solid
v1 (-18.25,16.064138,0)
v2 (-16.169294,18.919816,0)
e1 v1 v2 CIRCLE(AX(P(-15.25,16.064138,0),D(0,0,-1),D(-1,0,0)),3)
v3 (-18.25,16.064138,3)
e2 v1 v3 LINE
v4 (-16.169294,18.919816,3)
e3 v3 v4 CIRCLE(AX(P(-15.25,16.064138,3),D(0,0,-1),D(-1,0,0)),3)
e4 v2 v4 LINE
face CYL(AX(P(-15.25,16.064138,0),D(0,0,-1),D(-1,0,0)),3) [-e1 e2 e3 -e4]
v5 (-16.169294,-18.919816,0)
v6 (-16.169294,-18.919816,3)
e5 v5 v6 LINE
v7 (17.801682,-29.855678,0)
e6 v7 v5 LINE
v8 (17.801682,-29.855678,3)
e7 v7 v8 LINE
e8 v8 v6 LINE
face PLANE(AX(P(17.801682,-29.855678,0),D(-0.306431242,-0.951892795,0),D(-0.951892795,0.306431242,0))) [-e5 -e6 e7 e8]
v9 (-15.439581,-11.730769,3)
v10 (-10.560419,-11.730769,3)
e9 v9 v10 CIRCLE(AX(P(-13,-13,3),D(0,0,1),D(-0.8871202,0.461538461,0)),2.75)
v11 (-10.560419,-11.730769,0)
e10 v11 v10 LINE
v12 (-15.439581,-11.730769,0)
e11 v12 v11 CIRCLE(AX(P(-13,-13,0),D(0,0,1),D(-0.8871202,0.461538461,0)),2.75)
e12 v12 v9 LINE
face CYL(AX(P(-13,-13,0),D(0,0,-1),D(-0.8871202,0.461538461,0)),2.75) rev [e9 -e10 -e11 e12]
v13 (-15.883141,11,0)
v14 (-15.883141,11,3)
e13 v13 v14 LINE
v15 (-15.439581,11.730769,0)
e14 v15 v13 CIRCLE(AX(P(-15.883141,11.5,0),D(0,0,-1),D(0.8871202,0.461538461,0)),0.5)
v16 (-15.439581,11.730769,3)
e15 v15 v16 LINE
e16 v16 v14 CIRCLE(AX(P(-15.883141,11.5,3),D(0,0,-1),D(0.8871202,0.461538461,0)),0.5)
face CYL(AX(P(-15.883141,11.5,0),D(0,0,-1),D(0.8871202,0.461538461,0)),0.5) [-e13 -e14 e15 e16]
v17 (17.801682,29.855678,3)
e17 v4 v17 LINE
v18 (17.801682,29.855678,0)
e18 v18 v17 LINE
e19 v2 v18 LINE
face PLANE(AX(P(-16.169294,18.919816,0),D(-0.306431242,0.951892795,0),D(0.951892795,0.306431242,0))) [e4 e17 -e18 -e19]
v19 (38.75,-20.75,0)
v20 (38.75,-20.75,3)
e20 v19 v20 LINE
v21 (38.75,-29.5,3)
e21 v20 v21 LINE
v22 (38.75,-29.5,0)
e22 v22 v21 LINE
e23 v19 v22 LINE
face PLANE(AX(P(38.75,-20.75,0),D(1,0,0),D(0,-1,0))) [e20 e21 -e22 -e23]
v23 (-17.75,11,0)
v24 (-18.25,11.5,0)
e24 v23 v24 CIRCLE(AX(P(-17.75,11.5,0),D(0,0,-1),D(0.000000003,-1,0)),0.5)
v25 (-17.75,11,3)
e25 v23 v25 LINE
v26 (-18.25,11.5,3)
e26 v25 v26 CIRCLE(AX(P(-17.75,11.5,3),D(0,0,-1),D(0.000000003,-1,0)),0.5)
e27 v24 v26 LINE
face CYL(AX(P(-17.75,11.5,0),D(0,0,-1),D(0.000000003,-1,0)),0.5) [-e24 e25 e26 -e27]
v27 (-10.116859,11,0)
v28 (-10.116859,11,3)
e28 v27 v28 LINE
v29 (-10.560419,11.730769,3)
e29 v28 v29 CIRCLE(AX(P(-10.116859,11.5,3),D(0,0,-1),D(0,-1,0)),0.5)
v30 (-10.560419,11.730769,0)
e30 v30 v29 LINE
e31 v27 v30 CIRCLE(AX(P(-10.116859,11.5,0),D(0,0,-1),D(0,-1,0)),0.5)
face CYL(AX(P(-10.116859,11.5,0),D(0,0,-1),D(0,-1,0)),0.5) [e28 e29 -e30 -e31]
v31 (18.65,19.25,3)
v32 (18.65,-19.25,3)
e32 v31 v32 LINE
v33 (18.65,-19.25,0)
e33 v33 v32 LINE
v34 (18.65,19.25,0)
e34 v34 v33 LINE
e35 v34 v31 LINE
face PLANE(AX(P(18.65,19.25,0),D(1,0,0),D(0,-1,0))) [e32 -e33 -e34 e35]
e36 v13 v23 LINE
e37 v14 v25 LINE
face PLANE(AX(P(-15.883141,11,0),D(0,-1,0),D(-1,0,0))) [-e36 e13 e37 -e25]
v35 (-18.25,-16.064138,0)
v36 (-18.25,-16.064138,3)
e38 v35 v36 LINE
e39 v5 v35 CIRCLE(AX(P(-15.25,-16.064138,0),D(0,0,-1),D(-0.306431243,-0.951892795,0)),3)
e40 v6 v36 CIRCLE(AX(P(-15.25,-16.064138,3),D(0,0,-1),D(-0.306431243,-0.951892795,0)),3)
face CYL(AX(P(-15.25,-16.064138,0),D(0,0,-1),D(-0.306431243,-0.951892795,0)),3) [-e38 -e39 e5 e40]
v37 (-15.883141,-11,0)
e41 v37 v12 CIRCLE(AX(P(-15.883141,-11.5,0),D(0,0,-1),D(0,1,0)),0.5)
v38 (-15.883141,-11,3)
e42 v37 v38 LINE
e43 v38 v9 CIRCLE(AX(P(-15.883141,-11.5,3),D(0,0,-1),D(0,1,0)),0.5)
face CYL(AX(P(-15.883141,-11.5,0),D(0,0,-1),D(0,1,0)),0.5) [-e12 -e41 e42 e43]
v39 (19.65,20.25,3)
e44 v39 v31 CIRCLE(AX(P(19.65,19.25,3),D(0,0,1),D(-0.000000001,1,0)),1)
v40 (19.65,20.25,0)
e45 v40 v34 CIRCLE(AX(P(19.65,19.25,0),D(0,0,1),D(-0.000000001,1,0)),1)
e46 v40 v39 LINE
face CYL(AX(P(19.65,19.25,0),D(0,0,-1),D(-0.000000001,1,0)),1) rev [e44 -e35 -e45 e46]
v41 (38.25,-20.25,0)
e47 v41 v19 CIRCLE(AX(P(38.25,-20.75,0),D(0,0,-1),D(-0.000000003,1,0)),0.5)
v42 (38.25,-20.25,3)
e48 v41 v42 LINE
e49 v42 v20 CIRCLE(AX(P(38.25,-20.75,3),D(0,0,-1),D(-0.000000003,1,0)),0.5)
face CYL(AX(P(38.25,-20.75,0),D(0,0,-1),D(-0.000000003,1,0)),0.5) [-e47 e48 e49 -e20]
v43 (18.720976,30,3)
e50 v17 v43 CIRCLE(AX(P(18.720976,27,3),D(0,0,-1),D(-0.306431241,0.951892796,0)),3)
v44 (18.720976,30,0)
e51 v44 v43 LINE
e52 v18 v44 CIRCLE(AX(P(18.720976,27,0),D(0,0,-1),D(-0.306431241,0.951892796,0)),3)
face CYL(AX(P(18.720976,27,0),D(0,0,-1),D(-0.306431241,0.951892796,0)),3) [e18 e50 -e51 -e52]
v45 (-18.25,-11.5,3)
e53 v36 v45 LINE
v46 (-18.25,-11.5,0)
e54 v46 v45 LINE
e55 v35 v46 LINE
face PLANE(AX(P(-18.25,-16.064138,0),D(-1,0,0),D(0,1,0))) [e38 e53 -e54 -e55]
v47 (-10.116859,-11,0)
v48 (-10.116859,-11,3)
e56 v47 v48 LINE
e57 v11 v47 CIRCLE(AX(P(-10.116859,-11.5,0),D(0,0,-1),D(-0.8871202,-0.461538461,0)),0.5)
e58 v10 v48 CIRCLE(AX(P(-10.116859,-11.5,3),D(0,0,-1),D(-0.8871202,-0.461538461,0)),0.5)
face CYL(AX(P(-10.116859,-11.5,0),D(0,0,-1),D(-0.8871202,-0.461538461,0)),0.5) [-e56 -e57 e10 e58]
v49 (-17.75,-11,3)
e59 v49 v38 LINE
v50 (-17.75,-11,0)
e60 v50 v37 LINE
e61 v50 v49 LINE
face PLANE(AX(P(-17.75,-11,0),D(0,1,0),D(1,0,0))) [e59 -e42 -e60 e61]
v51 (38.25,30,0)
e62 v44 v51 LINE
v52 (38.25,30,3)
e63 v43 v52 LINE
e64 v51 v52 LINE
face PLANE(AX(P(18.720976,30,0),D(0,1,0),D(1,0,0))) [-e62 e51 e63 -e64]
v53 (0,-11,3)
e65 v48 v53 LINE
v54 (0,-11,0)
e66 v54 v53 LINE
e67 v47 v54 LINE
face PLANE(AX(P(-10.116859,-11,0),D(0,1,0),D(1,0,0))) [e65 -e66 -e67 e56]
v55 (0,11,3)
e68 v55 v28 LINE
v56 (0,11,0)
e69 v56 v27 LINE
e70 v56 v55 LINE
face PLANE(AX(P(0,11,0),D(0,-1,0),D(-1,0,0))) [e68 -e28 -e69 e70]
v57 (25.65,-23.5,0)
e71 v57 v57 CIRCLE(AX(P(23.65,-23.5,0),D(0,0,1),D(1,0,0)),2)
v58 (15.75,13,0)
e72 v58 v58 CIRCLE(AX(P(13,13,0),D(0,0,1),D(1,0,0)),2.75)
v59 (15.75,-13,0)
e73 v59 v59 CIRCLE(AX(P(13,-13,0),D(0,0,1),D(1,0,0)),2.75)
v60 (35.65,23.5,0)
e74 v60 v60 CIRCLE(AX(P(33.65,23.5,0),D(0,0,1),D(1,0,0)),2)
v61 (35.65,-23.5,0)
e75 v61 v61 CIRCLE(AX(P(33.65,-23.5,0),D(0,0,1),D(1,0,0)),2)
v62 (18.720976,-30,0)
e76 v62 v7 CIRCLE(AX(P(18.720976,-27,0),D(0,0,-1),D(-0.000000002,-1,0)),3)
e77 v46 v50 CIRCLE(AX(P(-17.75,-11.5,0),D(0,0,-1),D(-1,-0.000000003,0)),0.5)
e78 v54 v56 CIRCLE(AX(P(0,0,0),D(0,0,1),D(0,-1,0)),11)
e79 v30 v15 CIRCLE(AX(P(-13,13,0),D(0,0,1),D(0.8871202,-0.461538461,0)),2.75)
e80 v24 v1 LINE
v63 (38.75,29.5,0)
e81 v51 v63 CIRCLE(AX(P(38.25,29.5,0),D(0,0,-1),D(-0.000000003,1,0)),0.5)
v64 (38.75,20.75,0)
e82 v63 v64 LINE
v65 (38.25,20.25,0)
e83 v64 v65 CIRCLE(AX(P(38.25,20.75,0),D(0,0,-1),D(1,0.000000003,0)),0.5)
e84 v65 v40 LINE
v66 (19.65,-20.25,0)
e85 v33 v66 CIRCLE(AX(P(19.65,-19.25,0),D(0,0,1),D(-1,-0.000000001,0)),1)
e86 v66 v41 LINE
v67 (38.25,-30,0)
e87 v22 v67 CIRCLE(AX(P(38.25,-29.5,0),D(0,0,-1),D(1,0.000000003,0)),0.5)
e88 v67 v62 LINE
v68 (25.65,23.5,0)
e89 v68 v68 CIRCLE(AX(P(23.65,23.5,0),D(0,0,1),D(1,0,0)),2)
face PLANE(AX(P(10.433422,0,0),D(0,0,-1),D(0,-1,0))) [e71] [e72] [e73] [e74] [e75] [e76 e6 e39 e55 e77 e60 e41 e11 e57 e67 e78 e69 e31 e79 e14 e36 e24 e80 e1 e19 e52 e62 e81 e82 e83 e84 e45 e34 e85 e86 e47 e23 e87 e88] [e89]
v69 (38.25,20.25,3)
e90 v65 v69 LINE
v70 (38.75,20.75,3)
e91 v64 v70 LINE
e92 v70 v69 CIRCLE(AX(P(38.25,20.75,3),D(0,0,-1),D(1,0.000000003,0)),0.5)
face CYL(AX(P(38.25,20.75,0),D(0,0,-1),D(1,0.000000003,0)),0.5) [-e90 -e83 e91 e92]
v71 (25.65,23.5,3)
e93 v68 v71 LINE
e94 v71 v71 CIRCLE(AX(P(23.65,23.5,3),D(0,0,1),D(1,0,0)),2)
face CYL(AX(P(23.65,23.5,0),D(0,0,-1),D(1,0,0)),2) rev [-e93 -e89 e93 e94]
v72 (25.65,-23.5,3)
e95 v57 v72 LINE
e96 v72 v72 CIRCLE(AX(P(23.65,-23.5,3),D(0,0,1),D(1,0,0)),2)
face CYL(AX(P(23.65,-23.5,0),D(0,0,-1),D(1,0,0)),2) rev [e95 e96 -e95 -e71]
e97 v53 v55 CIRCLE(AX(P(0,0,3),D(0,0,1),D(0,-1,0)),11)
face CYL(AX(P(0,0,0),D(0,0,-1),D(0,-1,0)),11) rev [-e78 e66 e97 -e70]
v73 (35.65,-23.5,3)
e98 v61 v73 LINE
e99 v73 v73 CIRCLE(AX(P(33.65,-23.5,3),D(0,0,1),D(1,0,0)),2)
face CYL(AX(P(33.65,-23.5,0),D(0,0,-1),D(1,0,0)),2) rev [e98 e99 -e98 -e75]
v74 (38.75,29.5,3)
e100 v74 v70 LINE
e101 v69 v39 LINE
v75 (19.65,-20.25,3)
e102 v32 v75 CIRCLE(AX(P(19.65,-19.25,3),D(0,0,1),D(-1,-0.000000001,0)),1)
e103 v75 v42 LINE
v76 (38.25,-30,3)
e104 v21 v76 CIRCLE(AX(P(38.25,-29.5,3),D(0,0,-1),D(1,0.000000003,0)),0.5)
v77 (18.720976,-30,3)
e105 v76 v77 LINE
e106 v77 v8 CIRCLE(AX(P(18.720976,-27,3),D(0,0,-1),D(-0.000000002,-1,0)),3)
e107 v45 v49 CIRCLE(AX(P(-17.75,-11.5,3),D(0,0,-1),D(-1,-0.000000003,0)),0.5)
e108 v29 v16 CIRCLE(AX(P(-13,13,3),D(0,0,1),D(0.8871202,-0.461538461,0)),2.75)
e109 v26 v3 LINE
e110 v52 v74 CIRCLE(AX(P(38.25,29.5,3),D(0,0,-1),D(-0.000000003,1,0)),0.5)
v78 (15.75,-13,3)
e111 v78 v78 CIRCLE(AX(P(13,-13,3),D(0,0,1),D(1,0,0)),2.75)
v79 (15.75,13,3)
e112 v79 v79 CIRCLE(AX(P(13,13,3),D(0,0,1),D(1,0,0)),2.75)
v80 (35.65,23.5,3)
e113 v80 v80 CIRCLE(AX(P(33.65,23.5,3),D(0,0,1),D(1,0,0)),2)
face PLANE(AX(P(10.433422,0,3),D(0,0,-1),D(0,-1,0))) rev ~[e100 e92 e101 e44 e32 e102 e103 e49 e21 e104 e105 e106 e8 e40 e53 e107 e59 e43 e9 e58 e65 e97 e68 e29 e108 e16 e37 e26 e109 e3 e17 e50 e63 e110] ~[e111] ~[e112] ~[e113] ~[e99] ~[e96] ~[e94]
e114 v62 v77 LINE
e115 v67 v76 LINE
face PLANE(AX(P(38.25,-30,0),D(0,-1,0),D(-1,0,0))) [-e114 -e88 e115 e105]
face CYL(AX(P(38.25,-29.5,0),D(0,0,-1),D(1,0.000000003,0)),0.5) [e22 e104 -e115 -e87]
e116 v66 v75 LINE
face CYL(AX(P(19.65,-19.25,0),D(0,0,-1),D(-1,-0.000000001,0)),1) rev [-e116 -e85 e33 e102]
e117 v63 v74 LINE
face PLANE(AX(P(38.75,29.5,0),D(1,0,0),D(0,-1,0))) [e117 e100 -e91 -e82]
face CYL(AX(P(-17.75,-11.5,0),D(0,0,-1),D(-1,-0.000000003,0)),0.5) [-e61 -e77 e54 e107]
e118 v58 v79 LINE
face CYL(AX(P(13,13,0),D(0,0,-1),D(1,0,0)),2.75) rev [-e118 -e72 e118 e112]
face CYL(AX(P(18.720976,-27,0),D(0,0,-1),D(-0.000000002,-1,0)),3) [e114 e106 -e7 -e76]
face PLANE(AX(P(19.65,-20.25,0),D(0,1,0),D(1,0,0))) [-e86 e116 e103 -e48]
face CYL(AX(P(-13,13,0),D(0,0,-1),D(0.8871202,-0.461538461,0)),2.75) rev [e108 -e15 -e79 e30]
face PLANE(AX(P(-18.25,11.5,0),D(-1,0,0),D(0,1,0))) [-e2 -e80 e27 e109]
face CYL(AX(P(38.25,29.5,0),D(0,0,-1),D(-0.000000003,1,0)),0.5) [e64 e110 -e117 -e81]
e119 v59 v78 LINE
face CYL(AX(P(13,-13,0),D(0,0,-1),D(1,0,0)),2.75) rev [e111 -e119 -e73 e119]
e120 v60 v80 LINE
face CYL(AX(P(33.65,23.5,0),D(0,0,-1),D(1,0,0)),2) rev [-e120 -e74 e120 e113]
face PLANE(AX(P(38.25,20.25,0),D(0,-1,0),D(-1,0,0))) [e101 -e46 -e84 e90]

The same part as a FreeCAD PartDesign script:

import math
import FreeCAD as App
import Part
import Sketcher
from FreeCAD import Vector

doc = App.newDocument("Part")
body = doc.addObject("PartDesign::Body", "Body")

sketch1 = body.newObject("Sketcher::SketchObject", "Sketch")
sketch1.AttachmentSupport = (doc.getObject("XY_Plane"), [""])
sketch1.MapMode = "FlatFace"
sketch1.addGeometry(Part.LineSegment(Vector(-18.25, -11.5, 0), Vector(-18.25, -16.064138, 0)), False)
sketch1.addGeometry(Part.ArcOfCircle(Part.Circle(Vector(-15.25, -16.064138, 0), Vector(0, 0, 1), 3), math.radians(-180), math.radians(-107.844292)), False)
sketch1.addGeometry(Part.LineSegment(Vector(-16.169294, -18.919816, 0), Vector(17.801682, -29.855678, 0)), False)
sketch1.addGeometry(Part.ArcOfCircle(Part.Circle(Vector(18.720976, -27, 0), Vector(0, 0, 1), 3), math.radians(-107.844292), math.radians(-90)), False)
sketch1.addGeometry(Part.LineSegment(Vector(18.720976, -30, 0), Vector(38.25, -30, 0)), False)
sketch1.addGeometry(Part.ArcOfCircle(Part.Circle(Vector(38.25, -29.5, 0), Vector(0, 0, 1), 0.5), math.radians(-90), math.radians(0)), False)
sketch1.addGeometry(Part.LineSegment(Vector(38.75, -29.5, 0), Vector(38.75, -20.75, 0)), False)
sketch1.addGeometry(Part.ArcOfCircle(Part.Circle(Vector(38.25, -20.75, 0), Vector(0, 0, 1), 0.5), math.radians(0), math.radians(90)), False)
sketch1.addGeometry(Part.LineSegment(Vector(38.25, -20.25, 0), Vector(19.65, -20.25, 0)), False)
sketch1.addGeometry(Part.ArcOfCircle(Part.Circle(Vector(19.65, -19.25, 0), Vector(0, 0, 1), 1), math.radians(-180), math.radians(-90)), False)
sketch1.addGeometry(Part.LineSegment(Vector(18.65, -19.25, 0), Vector(18.65, 19.25, 0)), False)
sketch1.addGeometry(Part.ArcOfCircle(Part.Circle(Vector(19.65, 19.25, 0), Vector(0, 0, 1), 1), math.radians(90), math.radians(180)), False)
sketch1.addGeometry(Part.LineSegment(Vector(19.65, 20.25, 0), Vector(38.25, 20.25, 0)), False)
sketch1.addGeometry(Part.ArcOfCircle(Part.Circle(Vector(38.25, 20.75, 0), Vector(0, 0, 1), 0.5), math.radians(-90), math.radians(0)), False)
sketch1.addGeometry(Part.LineSegment(Vector(38.75, 20.75, 0), Vector(38.75, 29.5, 0)), False)
sketch1.addGeometry(Part.ArcOfCircle(Part.Circle(Vector(38.25, 29.5, 0), Vector(0, 0, 1), 0.5), math.radians(0), math.radians(90)), False)
sketch1.addGeometry(Part.LineSegment(Vector(38.25, 30, 0), Vector(18.720976, 30, 0)), False)
sketch1.addGeometry(Part.ArcOfCircle(Part.Circle(Vector(18.720976, 27, 0), Vector(0, 0, 1), 3), math.radians(90), math.radians(107.844292)), False)
sketch1.addGeometry(Part.LineSegment(Vector(17.801682, 29.855678, 0), Vector(-16.169294, 18.919816, 0)), False)
sketch1.addGeometry(Part.ArcOfCircle(Part.Circle(Vector(-15.25, 16.064138, 0), Vector(0, 0, 1), 3), math.radians(107.844292), math.radians(180)), False)
sketch1.addGeometry(Part.LineSegment(Vector(-18.25, 16.064138, 0), Vector(-18.25, 11.5, 0)), False)
sketch1.addGeometry(Part.ArcOfCircle(Part.Circle(Vector(-17.75, 11.5, 0), Vector(0, 0, 1), 0.5), math.radians(180), math.radians(270)), False)
sketch1.addGeometry(Part.LineSegment(Vector(-17.75, 11, 0), Vector(-15.883141, 11, 0)), False)
sketch1.addGeometry(Part.ArcOfCircle(Part.Circle(Vector(-15.883141, 11.5, 0), Vector(0, 0, 1), 0.5), math.radians(-90), math.radians(27.486426)), False)
sketch1.addGeometry(Part.ArcOfCircle(Part.Circle(Vector(-13, 13, 0), Vector(0, 0, 1), 2.75), math.radians(-27.486426), math.radians(207.486426)), False)
sketch1.addGeometry(Part.ArcOfCircle(Part.Circle(Vector(-10.116859, 11.5, 0), Vector(0, 0, 1), 0.5), math.radians(152.513574), math.radians(270)), False)
sketch1.addGeometry(Part.LineSegment(Vector(-10.116859, 11, 0), Vector(0, 11, 0)), False)
sketch1.addGeometry(Part.ArcOfCircle(Part.Circle(Vector(0, 0, 0), Vector(0, 0, 1), 11), math.radians(-90), math.radians(90)), False)
sketch1.addGeometry(Part.LineSegment(Vector(0, -11, 0), Vector(-10.116859, -11, 0)), False)
sketch1.addGeometry(Part.ArcOfCircle(Part.Circle(Vector(-10.116859, -11.5, 0), Vector(0, 0, 1), 0.5), math.radians(90), math.radians(207.486426)), False)
sketch1.addGeometry(Part.ArcOfCircle(Part.Circle(Vector(-13, -13, 0), Vector(0, 0, 1), 2.75), math.radians(152.513574), math.radians(387.486426)), False)
sketch1.addGeometry(Part.ArcOfCircle(Part.Circle(Vector(-15.883141, -11.5, 0), Vector(0, 0, 1), 0.5), math.radians(-27.486426), math.radians(90)), False)
sketch1.addGeometry(Part.LineSegment(Vector(-15.883141, -11, 0), Vector(-17.75, -11, 0)), False)
sketch1.addGeometry(Part.ArcOfCircle(Part.Circle(Vector(-17.75, -11.5, 0), Vector(0, 0, 1), 0.5), math.radians(90), math.radians(180)), False)
sketch1.addGeometry(Part.Circle(Vector(33.65, 23.5, 0), Vector(0, 0, 1), 2), False)
sketch1.addGeometry(Part.Circle(Vector(23.65, 23.5, 0), Vector(0, 0, 1), 2), False)
sketch1.addGeometry(Part.Circle(Vector(33.65, -23.5, 0), Vector(0, 0, 1), 2), False)
sketch1.addGeometry(Part.Circle(Vector(23.65, -23.5, 0), Vector(0, 0, 1), 2), False)
sketch1.addGeometry(Part.Circle(Vector(13, 13, 0), Vector(0, 0, 1), 2.75), False)
sketch1.addGeometry(Part.Circle(Vector(13, -13, 0), Vector(0, 0, 1), 2.75), False)
sketch1.addConstraint(Sketcher.Constraint("Tangent", 0, 2, 1, 1))
sketch1.addConstraint(Sketcher.Constraint("Tangent", 1, 2, 2, 1))
sketch1.addConstraint(Sketcher.Constraint("Tangent", 2, 2, 3, 1))
sketch1.addConstraint(Sketcher.Constraint("Tangent", 3, 2, 4, 1))
sketch1.addConstraint(Sketcher.Constraint("Tangent", 4, 2, 5, 1))
sketch1.addConstraint(Sketcher.Constraint("Tangent", 5, 2, 6, 1))
sketch1.addConstraint(Sketcher.Constraint("Tangent", 6, 2, 7, 1))
sketch1.addConstraint(Sketcher.Constraint("Tangent", 7, 2, 8, 1))
sketch1.addConstraint(Sketcher.Constraint("Tangent", 8, 2, 9, 2))
sketch1.addConstraint(Sketcher.Constraint("Tangent", 9, 1, 10, 1))
sketch1.addConstraint(Sketcher.Constraint("Tangent", 10, 2, 11, 2))
sketch1.addConstraint(Sketcher.Constraint("Tangent", 11, 1, 12, 1))
sketch1.addConstraint(Sketcher.Constraint("Tangent", 12, 2, 13, 1))
sketch1.addConstraint(Sketcher.Constraint("Tangent", 13, 2, 14, 1))
sketch1.addConstraint(Sketcher.Constraint("Tangent", 14, 2, 15, 1))
sketch1.addConstraint(Sketcher.Constraint("Tangent", 15, 2, 16, 1))
sketch1.addConstraint(Sketcher.Constraint("Tangent", 16, 2, 17, 1))
sketch1.addConstraint(Sketcher.Constraint("Tangent", 17, 2, 18, 1))
sketch1.addConstraint(Sketcher.Constraint("Tangent", 18, 2, 19, 1))
sketch1.addConstraint(Sketcher.Constraint("Tangent", 19, 2, 20, 1))
sketch1.addConstraint(Sketcher.Constraint("Tangent", 20, 2, 21, 1))
sketch1.addConstraint(Sketcher.Constraint("Tangent", 21, 2, 22, 1))
sketch1.addConstraint(Sketcher.Constraint("Tangent", 22, 2, 23, 1))
sketch1.addConstraint(Sketcher.Constraint("Tangent", 23, 2, 24, 2))
sketch1.addConstraint(Sketcher.Constraint("Tangent", 24, 1, 25, 1))
sketch1.addConstraint(Sketcher.Constraint("Tangent", 25, 2, 26, 1))
sketch1.addConstraint(Sketcher.Constraint("Tangent", 26, 2, 27, 2))
sketch1.addConstraint(Sketcher.Constraint("Tangent", 27, 1, 28, 1))
sketch1.addConstraint(Sketcher.Constraint("Tangent", 28, 2, 29, 1))
sketch1.addConstraint(Sketcher.Constraint("Tangent", 29, 2, 30, 2))
sketch1.addConstraint(Sketcher.Constraint("Tangent", 30, 1, 31, 1))
sketch1.addConstraint(Sketcher.Constraint("Tangent", 31, 2, 32, 1))
sketch1.addConstraint(Sketcher.Constraint("Tangent", 32, 2, 33, 1))
sketch1.addConstraint(Sketcher.Constraint("Tangent", 33, 2, 0, 1))
sketch1.addConstraint(Sketcher.Constraint("Vertical", 0))
sketch1.addConstraint(Sketcher.Constraint("Horizontal", 4))
sketch1.addConstraint(Sketcher.Constraint("Vertical", 6))
sketch1.addConstraint(Sketcher.Constraint("Horizontal", 8))
sketch1.addConstraint(Sketcher.Constraint("Vertical", 10))
sketch1.addConstraint(Sketcher.Constraint("Horizontal", 12))
sketch1.addConstraint(Sketcher.Constraint("Vertical", 14))
sketch1.addConstraint(Sketcher.Constraint("Horizontal", 16))
sketch1.addConstraint(Sketcher.Constraint("Vertical", 20))
sketch1.addConstraint(Sketcher.Constraint("Horizontal", 22))
sketch1.addConstraint(Sketcher.Constraint("Horizontal", 26))
sketch1.addConstraint(Sketcher.Constraint("Horizontal", 28))
sketch1.addConstraint(Sketcher.Constraint("Horizontal", 32))
sketch1.addConstraint(Sketcher.Constraint("Coincident", 27, 3, -1, 1))
sketch1.addConstraint(Sketcher.Constraint("Equal", 1, 3))
sketch1.addConstraint(Sketcher.Constraint("Equal", 5, 7))
sketch1.addConstraint(Sketcher.Constraint("Equal", 9, 11))
sketch1.addConstraint(Sketcher.Constraint("Equal", 7, 13))
sketch1.addConstraint(Sketcher.Constraint("Equal", 13, 15))
sketch1.addConstraint(Sketcher.Constraint("Equal", 3, 17))
sketch1.addConstraint(Sketcher.Constraint("Equal", 17, 19))
sketch1.addConstraint(Sketcher.Constraint("Equal", 15, 21))
sketch1.addConstraint(Sketcher.Constraint("Equal", 21, 23))
sketch1.addConstraint(Sketcher.Constraint("Equal", 23, 25))
sketch1.addConstraint(Sketcher.Constraint("Equal", 25, 29))
sketch1.addConstraint(Sketcher.Constraint("Equal", 24, 30))
sketch1.addConstraint(Sketcher.Constraint("Equal", 29, 31))
sketch1.addConstraint(Sketcher.Constraint("Equal", 31, 33))
sketch1.addConstraint(Sketcher.Constraint("Equal", 34, 35))
sketch1.addConstraint(Sketcher.Constraint("Equal", 35, 36))
sketch1.addConstraint(Sketcher.Constraint("Equal", 36, 37))
sketch1.addConstraint(Sketcher.Constraint("Equal", 30, 38))
sketch1.addConstraint(Sketcher.Constraint("Equal", 38, 39))
sketch1.addConstraint(Sketcher.Constraint("Symmetric", 30, 3, 38, 3, -1, 1))
sketch1.addConstraint(Sketcher.Constraint("Symmetric", 24, 3, 39, 3, -1, 1))
sketch1.addConstraint(Sketcher.Constraint("Symmetric", 24, 3, 38, 3, -2))
sketch1.addConstraint(Sketcher.Constraint("Symmetric", 7, 3, 13, 3, -1))
sketch1.addConstraint(Sketcher.Constraint("Symmetric", 3, 3, 17, 3, -1))
sketch1.addConstraint(Sketcher.Constraint("Symmetric", 1, 3, 19, 3, -1))
sketch1.addConstraint(Sketcher.Constraint("Symmetric", 34, 3, 36, 3, -1))
sketch1.addConstraint(Sketcher.Constraint("Symmetric", 35, 3, 37, 3, -1))
sketch1.addConstraint(Sketcher.Constraint("Horizontal", 23, 3, 25, 3))
sketch1.addConstraint(Sketcher.Constraint("Horizontal", 29, 3, 31, 3))
sketch1.addConstraint(Sketcher.Constraint("Horizontal", 34, 3, 35, 3))
sketch1.addConstraint(Sketcher.Constraint("Diameter", 34, 4.0))
sketch1.addConstraint(Sketcher.Constraint("Radius", 1, 3.0))
sketch1.addConstraint(Sketcher.Constraint("Radius", 9, 1.0))
sketch1.addConstraint(Sketcher.Constraint("Radius", 27, 11.0))
sketch1.addConstraint(Sketcher.Constraint("Diameter", 38, 5.5))
sketch1.addConstraint(Sketcher.Constraint("Radius", 5, 0.5))
sketch1.addConstraint(Sketcher.Constraint("DistanceX", 8, 2, 8, 1, 18.6))
sketch1.addConstraint(Sketcher.Constraint("DistanceY", 10, 1, 10, 2, 38.5))
sketch1.addConstraint(Sketcher.Constraint("DistanceY", 3, 3, -1, 1, 27.0))
sketch1.addConstraint(Sketcher.Constraint("DistanceX", 24, 3, -1, 1, 13.0))
sketch1.addConstraint(Sketcher.Constraint("DistanceY", -1, 1, 24, 3, 13.0))
sketch1.addConstraint(Sketcher.Constraint("DistanceY", 34, 3, 15, 3, 6.0))
sketch1.addConstraint(Sketcher.Constraint("DistanceX", 11, 3, 34, 3, 14.0))
sketch1.addConstraint(Sketcher.Constraint("DistanceX", 11, 3, 35, 3, 4.0))
sketch1.addConstraint(Sketcher.Constraint("DistanceX", 1, 3, 5, 3, 53.5))
sketch1.addConstraint(Sketcher.Constraint("DistanceX", 1, 3, -1, 1, 15.25))
sketch1.addConstraint(Sketcher.Constraint("DistanceY", 0, 2, 0, 1, 4.564138))
sketch1.addConstraint(Sketcher.Constraint("DistanceX", 4, 1, 4, 2, 19.529024))
pad1 = body.newObject("PartDesign::Pad", "Pad")
pad1.Profile = sketch1
pad1.Length = 3

doc.recompute()
